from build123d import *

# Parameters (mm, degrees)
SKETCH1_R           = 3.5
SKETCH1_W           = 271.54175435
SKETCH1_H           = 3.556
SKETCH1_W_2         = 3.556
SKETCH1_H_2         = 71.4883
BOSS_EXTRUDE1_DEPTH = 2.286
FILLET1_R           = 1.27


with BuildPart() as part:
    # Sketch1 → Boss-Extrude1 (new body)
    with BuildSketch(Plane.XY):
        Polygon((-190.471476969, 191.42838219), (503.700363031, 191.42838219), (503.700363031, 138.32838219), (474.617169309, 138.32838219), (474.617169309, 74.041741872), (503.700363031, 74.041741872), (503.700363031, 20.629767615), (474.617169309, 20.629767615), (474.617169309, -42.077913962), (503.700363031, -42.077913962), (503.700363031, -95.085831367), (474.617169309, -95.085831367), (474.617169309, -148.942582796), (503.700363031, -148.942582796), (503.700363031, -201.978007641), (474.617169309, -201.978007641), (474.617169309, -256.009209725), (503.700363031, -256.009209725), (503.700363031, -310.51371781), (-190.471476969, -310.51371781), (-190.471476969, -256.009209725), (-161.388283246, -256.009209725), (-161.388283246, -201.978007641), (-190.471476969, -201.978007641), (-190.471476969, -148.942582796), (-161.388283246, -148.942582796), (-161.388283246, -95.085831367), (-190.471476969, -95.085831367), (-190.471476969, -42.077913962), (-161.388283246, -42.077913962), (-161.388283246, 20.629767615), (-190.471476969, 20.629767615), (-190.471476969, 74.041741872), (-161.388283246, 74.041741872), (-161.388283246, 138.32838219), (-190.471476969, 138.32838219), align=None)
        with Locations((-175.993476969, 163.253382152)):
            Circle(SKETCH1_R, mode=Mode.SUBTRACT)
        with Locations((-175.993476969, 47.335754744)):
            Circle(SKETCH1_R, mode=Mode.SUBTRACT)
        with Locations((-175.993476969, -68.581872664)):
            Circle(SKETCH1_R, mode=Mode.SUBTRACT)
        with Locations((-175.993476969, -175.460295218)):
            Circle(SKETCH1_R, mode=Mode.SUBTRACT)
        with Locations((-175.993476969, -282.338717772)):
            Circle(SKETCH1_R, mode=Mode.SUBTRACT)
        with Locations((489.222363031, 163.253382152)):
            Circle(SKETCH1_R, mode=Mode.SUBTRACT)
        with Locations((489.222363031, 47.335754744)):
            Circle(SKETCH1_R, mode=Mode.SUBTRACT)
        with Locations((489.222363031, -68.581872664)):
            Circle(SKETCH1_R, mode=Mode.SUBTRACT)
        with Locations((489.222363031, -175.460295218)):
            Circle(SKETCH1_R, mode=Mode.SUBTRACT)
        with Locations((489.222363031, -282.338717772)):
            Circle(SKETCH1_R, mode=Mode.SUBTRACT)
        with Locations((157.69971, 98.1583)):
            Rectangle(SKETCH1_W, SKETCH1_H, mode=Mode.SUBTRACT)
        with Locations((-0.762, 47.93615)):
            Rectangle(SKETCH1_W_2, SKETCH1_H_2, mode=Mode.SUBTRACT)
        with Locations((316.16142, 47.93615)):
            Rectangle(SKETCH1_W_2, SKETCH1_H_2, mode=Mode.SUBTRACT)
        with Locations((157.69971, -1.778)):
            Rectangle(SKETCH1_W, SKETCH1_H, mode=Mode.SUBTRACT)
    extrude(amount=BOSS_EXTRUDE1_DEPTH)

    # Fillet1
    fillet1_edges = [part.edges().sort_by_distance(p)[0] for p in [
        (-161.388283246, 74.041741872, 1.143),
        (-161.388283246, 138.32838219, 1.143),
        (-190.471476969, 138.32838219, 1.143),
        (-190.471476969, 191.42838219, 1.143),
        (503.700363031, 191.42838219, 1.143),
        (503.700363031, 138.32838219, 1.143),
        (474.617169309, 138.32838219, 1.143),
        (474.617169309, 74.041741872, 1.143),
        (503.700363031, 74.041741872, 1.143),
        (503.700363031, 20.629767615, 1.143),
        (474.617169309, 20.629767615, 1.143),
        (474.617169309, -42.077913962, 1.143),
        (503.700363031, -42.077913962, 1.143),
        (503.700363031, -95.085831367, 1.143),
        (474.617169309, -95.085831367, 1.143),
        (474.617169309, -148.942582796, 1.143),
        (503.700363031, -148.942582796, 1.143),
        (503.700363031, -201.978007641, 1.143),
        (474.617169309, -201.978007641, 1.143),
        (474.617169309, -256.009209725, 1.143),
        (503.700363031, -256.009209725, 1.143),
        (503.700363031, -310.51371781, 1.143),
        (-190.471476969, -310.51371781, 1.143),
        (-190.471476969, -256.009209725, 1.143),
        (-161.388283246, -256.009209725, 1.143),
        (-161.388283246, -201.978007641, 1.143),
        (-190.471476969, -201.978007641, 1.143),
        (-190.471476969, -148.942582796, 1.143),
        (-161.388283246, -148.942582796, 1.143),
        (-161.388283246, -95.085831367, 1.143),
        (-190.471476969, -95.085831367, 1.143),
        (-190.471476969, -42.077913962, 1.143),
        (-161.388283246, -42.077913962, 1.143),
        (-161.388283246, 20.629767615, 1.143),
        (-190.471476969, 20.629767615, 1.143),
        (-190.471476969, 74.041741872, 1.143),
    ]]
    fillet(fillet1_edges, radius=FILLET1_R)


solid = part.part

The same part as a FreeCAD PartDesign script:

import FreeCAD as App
import Part
import Sketcher
Q = App.Units.Quantity


def edges_at(feature, points):
    """Names of the edges that pass closest to the given points."""
    edges = feature.Shape.Edges
    near = lambda p: min(range(len(edges)), key=lambda i: edges[i].distToShape(Part.Vertex(*p))[0])
    return sorted({f"Edge{near(p) + 1}" for p in points})


def add_polygon(sketch, points):
    """Adds a closed chain of lines whose ends are joined by coincident constraints."""
    first, n = sketch.GeometryCount, len(points)
    for a, b in zip(points, points[1:] + points[:1]):
        sketch.addGeometry(Part.LineSegment(App.Vector(*a, 0), App.Vector(*b, 0)), False)
    for i in range(n):
        sketch.addConstraint(Sketcher.Constraint("Coincident", first + i, 2, first + (i + 1) % n, 1))

doc = App.newDocument("Part")
params = doc.addObject("Spreadsheet::Sheet", "Params")
for row, (alias, value) in enumerate([
    ("sketch1_width", "0.14 in"),
    ("pad1_length", "0.09 in"),
    ("fillet_radius", "0.05 in"),
], start=1):
    params.set(f"A{row}", alias)
    params.set(f"B{row}", "=" + value)
    params.setAlias(f"B{row}", alias)

body = doc.addObject("PartDesign::Body", "Body")

# Sketch on XY plane
sketch1 = body.newObject("Sketcher::SketchObject", "Sketch")
sketch1.AttachmentSupport = (doc.getObject("XY_Plane"), [""])
sketch1.MapMode = "FlatFace"
add_polygon(sketch1, [(503.700363, 191.428382), (-190.471477, 191.428382), (-190.471477, 138.328382), (-161.388283, 138.328382), (-161.388283, 74.041742), (-190.471477, 74.041742), (-190.471477, 20.629768), (-161.388283, 20.629768), (-161.388283, -42.077914), (-190.471477, -42.077914), (-190.471477, -95.085831), (-161.388283, -95.085831), (-161.388283, -148.942583), (-190.471477, -148.942583), (-190.471477, -201.978008), (-161.388283, -201.978008), (-161.388283, -256.00921), (-190.471477, -256.00921), (-190.471477, -310.513718), (503.700363, -310.513718), (503.700363, -256.00921), (474.617169, -256.00921), (474.617169, -201.978008), (503.700363, -201.978008), (503.700363, -148.942583), (474.617169, -148.942583), (474.617169, -95.085831), (503.700363, -95.085831), (503.700363, -42.077914), (474.617169, -42.077914), (474.617169, 20.629768), (503.700363, 20.629768), (503.700363, 74.041742), (474.617169, 74.041742), (474.617169, 138.328382), (503.700363, 138.328382)])  # lines 0-35
sketch1.addGeometry(Part.Circle(App.Vector(489.222363, -282.338718, 0), App.Vector(0, 0, 1), 3.5), False)  # 36
sketch1.addGeometry(Part.Circle(App.Vector(489.222363, -175.460295, 0), App.Vector(0, 0, 1), 3.5), False)  # 37
sketch1.addGeometry(Part.Circle(App.Vector(489.222363, -68.581873, 0), App.Vector(0, 0, 1), 3.5), False)  # 38
sketch1.addGeometry(Part.Circle(App.Vector(-175.993477, -282.338718, 0), App.Vector(0, 0, 1), 3.5), False)  # 39
sketch1.addGeometry(Part.Circle(App.Vector(-175.993477, -175.460295, 0), App.Vector(0, 0, 1), 3.5), False)  # 40
sketch1.addGeometry(Part.Circle(App.Vector(-175.993477, -68.581873, 0), App.Vector(0, 0, 1), 3.5), False)  # 41
sketch1.addGeometry(Part.Circle(App.Vector(489.222363, 47.335755, 0), App.Vector(0, 0, 1), 3.5), False)  # 42
add_polygon(sketch1, [(314.38342, 12.192), (314.38342, 83.6803), (317.93942, 83.6803), (317.93942, 12.192)])  # lines 43-46
add_polygon(sketch1, [(21.928833, -3.556), (21.928833, 0), (293.470587, 0), (293.470587, -3.556)])  # lines 47-50
sketch1.addGeometry(Part.Circle(App.Vector(489.222363, 163.253382, 0), App.Vector(0, 0, 1), 3.5), False)  # 51
add_polygon(sketch1, [(21.928833, 96.3803), (21.928833, 99.9363), (293.470587, 99.9363), (293.470587, 96.3803)])  # lines 52-55
add_polygon(sketch1, [(-2.54, 12.192), (-2.54, 83.6803), (1.016, 83.6803), (1.016, 12.192)])  # lines 56-59
sketch1.addGeometry(Part.Circle(App.Vector(-175.993477, 47.335755, 0), App.Vector(0, 0, 1), 3.5), False)  # 60
sketch1.addGeometry(Part.Circle(App.Vector(-175.993477, 163.253382, 0), App.Vector(0, 0, 1), 3.5), False)  # 61
sketch1.addConstraint(Sketcher.Constraint("Horizontal", 0))
sketch1.addConstraint(Sketcher.Constraint("Vertical", 1))
sketch1.addConstraint(Sketcher.Constraint("Horizontal", 2))
sketch1.addConstraint(Sketcher.Constraint("Vertical", 3))
sketch1.addConstraint(Sketcher.Constraint("Horizontal", 4))
sketch1.addConstraint(Sketcher.Constraint("Vertical", 5))
sketch1.addConstraint(Sketcher.Constraint("Horizontal", 6))
sketch1.addConstraint(Sketcher.Constraint("Vertical", 7))
sketch1.addConstraint(Sketcher.Constraint("Horizontal", 8))
sketch1.addConstraint(Sketcher.Constraint("Vertical", 9))
sketch1.addConstraint(Sketcher.Constraint("Horizontal", 10))
sketch1.addConstraint(Sketcher.Constraint("Vertical", 11))
sketch1.addConstraint(Sketcher.Constraint("Horizontal", 12))
sketch1.addConstraint(Sketcher.Constraint("Vertical", 13))
sketch1.addConstraint(Sketcher.Constraint("Horizontal", 14))
sketch1.addConstraint(Sketcher.Constraint("Vertical", 15))
sketch1.addConstraint(Sketcher.Constraint("Horizontal", 16))
sketch1.addConstraint(Sketcher.Constraint("Vertical", 17))
sketch1.addConstraint(Sketcher.Constraint("Horizontal", 18))
sketch1.addConstraint(Sketcher.Constraint("Vertical", 19))
sketch1.addConstraint(Sketcher.Constraint("Horizontal", 20))
sketch1.addConstraint(Sketcher.Constraint("Vertical", 21))
sketch1.addConstraint(Sketcher.Constraint("Horizontal", 22))
sketch1.addConstraint(Sketcher.Constraint("Vertical", 23))
sketch1.addConstraint(Sketcher.Constraint("Horizontal", 24))
sketch1.addConstraint(Sketcher.Constraint("Vertical", 25))
sketch1.addConstraint(Sketcher.Constraint("Horizontal", 26))
sketch1.addConstraint(Sketcher.Constraint("Vertical", 27))
sketch1.addConstraint(Sketcher.Constraint("Horizontal", 28))
sketch1.addConstraint(Sketcher.Constraint("Vertical", 29))
sketch1.addConstraint(Sketcher.Constraint("Horizontal", 30))
sketch1.addConstraint(Sketcher.Constraint("Vertical", 31))
sketch1.addConstraint(Sketcher.Constraint("Horizontal", 32))
sketch1.addConstraint(Sketcher.Constraint("Vertical", 33))
sketch1.addConstraint(Sketcher.Constraint("Horizontal", 34))
sketch1.addConstraint(Sketcher.Constraint("Vertical", 35))
sketch1.addConstraint(Sketcher.Constraint("Vertical", 43))
sketch1.addConstraint(Sketcher.Constraint("Horizontal", 44))
sketch1.addConstraint(Sketcher.Constraint("Vertical", 45))
sketch1.addConstraint(Sketcher.Constraint("Horizontal", 46))
sketch1.addConstraint(Sketcher.Constraint("Vertical", 47))
sketch1.addConstraint(Sketcher.Constraint("Horizontal", 48))
sketch1.addConstraint(Sketcher.Constraint("Vertical", 49))
sketch1.addConstraint(Sketcher.Constraint("Horizontal", 50))
sketch1.addConstraint(Sketcher.Constraint("Vertical", 52))
sketch1.addConstraint(Sketcher.Constraint("Horizontal", 53))
sketch1.addConstraint(Sketcher.Constraint("Vertical", 54))
sketch1.addConstraint(Sketcher.Constraint("Horizontal", 55))
sketch1.addConstraint(Sketcher.Constraint("Vertical", 56))
sketch1.addConstraint(Sketcher.Constraint("Horizontal", 57))
sketch1.addConstraint(Sketcher.Constraint("Vertical", 58))
sketch1.addConstraint(Sketcher.Constraint("Horizontal", 59))
sketch1.addConstraint(Sketcher.Constraint("Equal", 36, 37))
sketch1.addConstraint(Sketcher.Constraint("Equal", 37, 38))
sketch1.addConstraint(Sketcher.Constraint("Equal", 38, 39))
sketch1.addConstraint(Sketcher.Constraint("Equal", 39, 40))
sketch1.addConstraint(Sketcher.Constraint("Equal", 40, 41))
sketch1.addConstraint(Sketcher.Constraint("Equal", 41, 42))
sketch1.addConstraint(Sketcher.Constraint("Equal", 42, 51))
sketch1.addConstraint(Sketcher.Constraint("Equal", 51, 60))
sketch1.addConstraint(Sketcher.Constraint("Equal", 60, 61))
sketch1.addConstraint(Sketcher.Constraint("PointOnObject", 47, 2, -1))
sketch1.addConstraint(Sketcher.Constraint("Horizontal", 36, 3, 39, 3))
sketch1.addConstraint(Sketcher.Constraint("Horizontal", 37, 3, 40, 3))
sketch1.addConstraint(Sketcher.Constraint("Horizontal", 38, 3, 41, 3))
sketch1.addConstraint(Sketcher.Constraint("Horizontal", 42, 3, 60, 3))
sketch1.addConstraint(Sketcher.Constraint("Horizontal", 51, 3, 61, 3))
sketch1.addConstraint(Sketcher.Constraint("Horizontal", 16, 2, 19, 2))
sketch1.addConstraint(Sketcher.Constraint("Horizontal", 14, 2, 21, 2))
sketch1.addConstraint(Sketcher.Constraint("Horizontal", 12, 2, 23, 2))
sketch1.addConstraint(Sketcher.Constraint("Horizontal", 10, 2, 25, 2))
sketch1.addConstraint(Sketcher.Constraint("Horizontal", 8, 2, 27, 2))
sketch1.addConstraint(Sketcher.Constraint("Horizontal", 6, 2, 29, 2))
sketch1.addConstraint(Sketcher.Constraint("Horizontal", 4, 2, 31, 2))
sketch1.addConstraint(Sketcher.Constraint("Horizontal", 2, 2, 33, 2))
sketch1.addConstraint(Sketcher.Constraint("Horizontal", 44, 2, 56, 2))
sketch1.addConstraint(Sketcher.Constraint("Horizontal", 46, 2, 58, 2))
sketch1.addConstraint(Sketcher.Constraint("Vertical", 36, 3, 37, 3))
sketch1.addConstraint(Sketcher.Constraint("Vertical", 37, 3, 38, 3))
sketch1.addConstraint(Sketcher.Constraint("Vertical", 39, 3, 40, 3))
sketch1.addConstraint(Sketcher.Constraint("Vertical", 40, 3, 41, 3))
sketch1.addConstraint(Sketcher.Constraint("Vertical", 38, 3, 42, 3))
sketch1.addConstraint(Sketcher.Constraint("Vertical", 42, 3, 51, 3))
sketch1.addConstraint(Sketcher.Constraint("Vertical", 41, 3, 60, 3))
sketch1.addConstraint(Sketcher.Constraint("Vertical", 60, 3, 61, 3))
sketch1.addConstraint(Sketcher.Constraint("Vertical", 1, 2, 4, 2))
sketch1.addConstraint(Sketcher.Constraint("Vertical", 3, 2, 6, 2))
sketch1.addConstraint(Sketcher.Constraint("Vertical", 5, 2, 8, 2))
sketch1.addConstraint(Sketcher.Constraint("Vertical", 7, 2, 10, 2))
sketch1.addConstraint(Sketcher.Constraint("Vertical", 9, 2, 12, 2))
sketch1.addConstraint(Sketcher.Constraint("Vertical", 11, 2, 14, 2))
sketch1.addConstraint(Sketcher.Constraint("Vertical", 13, 2, 16, 2))
sketch1.addConstraint(Sketcher.Constraint("Vertical", 19, 2, 22, 2))
sketch1.addConstraint(Sketcher.Constraint("Vertical", 21, 2, 24, 2))
sketch1.addConstraint(Sketcher.Constraint("Vertical", 23, 2, 26, 2))
sketch1.addConstraint(Sketcher.Constraint("Vertical", 25, 2, 28, 2))
sketch1.addConstraint(Sketcher.Constraint("Vertical", 27, 2, 30, 2))
sketch1.addConstraint(Sketcher.Constraint("Vertical", 29, 2, 32, 2))
sketch1.addConstraint(Sketcher.Constraint("Vertical", 31, 2, 34, 2))
sketch1.addConstraint(Sketcher.Constraint("Vertical", 50, 2, 52, 2))
sketch1.addConstraint(Sketcher.Constraint("Vertical", 49, 2, 53, 2))
sketch1.addConstraint(Sketcher.Constraint("Equal", 16, 20))
sketch1.addConstraint(Sketcher.Constraint("Equal", 46, 57))
sketch1.addConstraint(Sketcher.Constraint("Equal", 59, 47))
sketch1.addConstraint(Sketcher.Constraint("Equal", 49, 52))
sketch1.addConstraint(Sketcher.Constraint("DistanceX", 44, 1, 44, 2, Q("0.14 in")))
sketch1.addConstraint(Sketcher.Constraint("DistanceX", 56, 2, -1, 1, Q("0.1 in")))
sketch1.addConstraint(Sketcher.Constraint("Diameter", 36, 7.0))
sketch1.addConstraint(Sketcher.Constraint("DistanceY", -1, 1, 45, 2, Q("0.48 in")))
sketch1.addConstraint(Sketcher.Constraint("DistanceX", 0, 2, 0, 1, Q("27.3296 in")))
sketch1.addConstraint(Sketcher.Constraint("DistanceY", 43, 1, 43, 2, Q("2.8145 in")))
sketch1.addConstraint(Sketcher.Constraint("DistanceY", 1, 2, 1, 1, 53.1))
sketch1.addConstraint(Sketcher.Constraint("DistanceX", -1, 1, 43, 2, Q("12.3773 in")))
sketch1.addConstraint(Sketcher.Constraint("DistanceY", -1, 1, 52, 2, Q("3.9345 in")))
sketch1.addConstraint(Sketcher.Constraint("DistanceY", 3, 2, 3, 1, 64.28664))
sketch1.addConstraint(Sketcher.Constraint("DistanceY", 7, 2, 7, 1, 62.707682))
sketch1.addConstraint(Sketcher.Constraint("DistanceY", 11, 2, 11, 1, 53.856751))
sketch1.addConstraint(Sketcher.Constraint("DistanceY", 17, 2, 17, 1, 54.504508))
sketch1.addConstraint(Sketcher.Constraint("DistanceX", 2, 1, 2, 2, 29.083194))
sketch1.addConstraint(Sketcher.Constraint("DistanceX", 48, 1, 48, 2, 271.541754))
sketch1.addConstraint(Sketcher.Constraint("DistanceY", 5, 2, 5, 1, 53.411974))
sketch1.addConstraint(Sketcher.Constraint("DistanceY", 9, 2, 9, 1, 53.007917))
sketch1.addConstraint(Sketcher.Constraint("DistanceY", 13, 2, 13, 1, 53.035425))
sketch1.addConstraint(Sketcher.Constraint("DistanceY", 15, 2, 15, 1, 54.031202))
sketch1.addConstraint(Sketcher.Constraint("DistanceY", -1, 1, 3, 2, 74.041742))
sketch1.addConstraint(Sketcher.Constraint("DistanceX", -1, 1, 20, 2, 474.617169))
sketch1.addConstraint(Sketcher.Constraint("DistanceX", -1, 1, 36, 3, 489.222363))
sketch1.addConstraint(Sketcher.Constraint("DistanceY", 36, 3, -1, 1, 282.338718))
sketch1.addConstraint(Sketcher.Constraint("DistanceY", 37, 3, -1, 1, 175.460295))
sketch1.addConstraint(Sketcher.Constraint("DistanceY", 38, 3, -1, 1, 68.581873))
sketch1.addConstraint(Sketcher.Constraint("DistanceX", 39, 3, -1, 1, 175.993477))
sketch1.addConstraint(Sketcher.Constraint("DistanceY", -1, 1, 42, 3, 47.335755))
sketch1.addConstraint(Sketcher.Constraint("DistanceY", -1, 1, 51, 3, 163.253382))
sketch1.addConstraint(Sketcher.Constraint("DistanceX", -1, 1, 47, 2, 21.928833))
sketch1.setExpression("Constraints[157]", "Params.sketch1_width")
pad1 = body.newObject("PartDesign::Pad", "Pad")
pad1.Profile = sketch1
pad1.setExpression("Length", "Params.pad1_length")
doc.recompute()

fillet = body.newObject("PartDesign::Fillet", "Fillet")
fillet.Base = (pad1, edges_at(pad1, [
    (-161.388, 74.042, 1.143),
    (-161.388, 138.328, 1.143),
    (-190.471, 138.328, 1.143),
    (-190.471, 191.428, 1.143),
    (503.7, 191.428, 1.143),
    (503.7, 138.328, 1.143),
    (474.617, 138.328, 1.143),
    (474.617, 74.042, 1.143),
    (503.7, 74.042, 1.143),
    (503.7, 20.63, 1.143),
    (474.617, 20.63, 1.143),
    (474.617, -42.078, 1.143),
    (503.7, -42.078, 1.143),
    (503.7, -95.086, 1.143),
    (474.617, -95.086, 1.143),
    (474.617, -148.943, 1.143),
    (503.7, -148.943, 1.143),
    (503.7, -201.978, 1.143),
    (474.617, -201.978, 1.143),
    (474.617, -256.009, 1.143),
    (503.7, -256.009, 1.143),
    (503.7, -310.514, 1.143),
    (-190.471, -310.514, 1.143),
    (-190.471, -256.009, 1.143),
    (-161.388, -256.009, 1.143),
    (-161.388, -201.978, 1.143),
    (-190.471, -201.978, 1.143),
    (-190.471, -148.943, 1.143),
    (-161.388, -148.943, 1.143),
    (-161.388, -95.086, 1.143),
    (-190.471, -95.086, 1.143),
    (-190.471, -42.078, 1.143),
    (-161.388, -42.078, 1.143),
    (-161.388, 20.63, 1.143),
    (-190.471, 20.63, 1.143),
    (-190.471, 74.042, 1.143),
]))
fillet.setExpression("Radius", "Params.fillet_radius")

doc.recompute()
